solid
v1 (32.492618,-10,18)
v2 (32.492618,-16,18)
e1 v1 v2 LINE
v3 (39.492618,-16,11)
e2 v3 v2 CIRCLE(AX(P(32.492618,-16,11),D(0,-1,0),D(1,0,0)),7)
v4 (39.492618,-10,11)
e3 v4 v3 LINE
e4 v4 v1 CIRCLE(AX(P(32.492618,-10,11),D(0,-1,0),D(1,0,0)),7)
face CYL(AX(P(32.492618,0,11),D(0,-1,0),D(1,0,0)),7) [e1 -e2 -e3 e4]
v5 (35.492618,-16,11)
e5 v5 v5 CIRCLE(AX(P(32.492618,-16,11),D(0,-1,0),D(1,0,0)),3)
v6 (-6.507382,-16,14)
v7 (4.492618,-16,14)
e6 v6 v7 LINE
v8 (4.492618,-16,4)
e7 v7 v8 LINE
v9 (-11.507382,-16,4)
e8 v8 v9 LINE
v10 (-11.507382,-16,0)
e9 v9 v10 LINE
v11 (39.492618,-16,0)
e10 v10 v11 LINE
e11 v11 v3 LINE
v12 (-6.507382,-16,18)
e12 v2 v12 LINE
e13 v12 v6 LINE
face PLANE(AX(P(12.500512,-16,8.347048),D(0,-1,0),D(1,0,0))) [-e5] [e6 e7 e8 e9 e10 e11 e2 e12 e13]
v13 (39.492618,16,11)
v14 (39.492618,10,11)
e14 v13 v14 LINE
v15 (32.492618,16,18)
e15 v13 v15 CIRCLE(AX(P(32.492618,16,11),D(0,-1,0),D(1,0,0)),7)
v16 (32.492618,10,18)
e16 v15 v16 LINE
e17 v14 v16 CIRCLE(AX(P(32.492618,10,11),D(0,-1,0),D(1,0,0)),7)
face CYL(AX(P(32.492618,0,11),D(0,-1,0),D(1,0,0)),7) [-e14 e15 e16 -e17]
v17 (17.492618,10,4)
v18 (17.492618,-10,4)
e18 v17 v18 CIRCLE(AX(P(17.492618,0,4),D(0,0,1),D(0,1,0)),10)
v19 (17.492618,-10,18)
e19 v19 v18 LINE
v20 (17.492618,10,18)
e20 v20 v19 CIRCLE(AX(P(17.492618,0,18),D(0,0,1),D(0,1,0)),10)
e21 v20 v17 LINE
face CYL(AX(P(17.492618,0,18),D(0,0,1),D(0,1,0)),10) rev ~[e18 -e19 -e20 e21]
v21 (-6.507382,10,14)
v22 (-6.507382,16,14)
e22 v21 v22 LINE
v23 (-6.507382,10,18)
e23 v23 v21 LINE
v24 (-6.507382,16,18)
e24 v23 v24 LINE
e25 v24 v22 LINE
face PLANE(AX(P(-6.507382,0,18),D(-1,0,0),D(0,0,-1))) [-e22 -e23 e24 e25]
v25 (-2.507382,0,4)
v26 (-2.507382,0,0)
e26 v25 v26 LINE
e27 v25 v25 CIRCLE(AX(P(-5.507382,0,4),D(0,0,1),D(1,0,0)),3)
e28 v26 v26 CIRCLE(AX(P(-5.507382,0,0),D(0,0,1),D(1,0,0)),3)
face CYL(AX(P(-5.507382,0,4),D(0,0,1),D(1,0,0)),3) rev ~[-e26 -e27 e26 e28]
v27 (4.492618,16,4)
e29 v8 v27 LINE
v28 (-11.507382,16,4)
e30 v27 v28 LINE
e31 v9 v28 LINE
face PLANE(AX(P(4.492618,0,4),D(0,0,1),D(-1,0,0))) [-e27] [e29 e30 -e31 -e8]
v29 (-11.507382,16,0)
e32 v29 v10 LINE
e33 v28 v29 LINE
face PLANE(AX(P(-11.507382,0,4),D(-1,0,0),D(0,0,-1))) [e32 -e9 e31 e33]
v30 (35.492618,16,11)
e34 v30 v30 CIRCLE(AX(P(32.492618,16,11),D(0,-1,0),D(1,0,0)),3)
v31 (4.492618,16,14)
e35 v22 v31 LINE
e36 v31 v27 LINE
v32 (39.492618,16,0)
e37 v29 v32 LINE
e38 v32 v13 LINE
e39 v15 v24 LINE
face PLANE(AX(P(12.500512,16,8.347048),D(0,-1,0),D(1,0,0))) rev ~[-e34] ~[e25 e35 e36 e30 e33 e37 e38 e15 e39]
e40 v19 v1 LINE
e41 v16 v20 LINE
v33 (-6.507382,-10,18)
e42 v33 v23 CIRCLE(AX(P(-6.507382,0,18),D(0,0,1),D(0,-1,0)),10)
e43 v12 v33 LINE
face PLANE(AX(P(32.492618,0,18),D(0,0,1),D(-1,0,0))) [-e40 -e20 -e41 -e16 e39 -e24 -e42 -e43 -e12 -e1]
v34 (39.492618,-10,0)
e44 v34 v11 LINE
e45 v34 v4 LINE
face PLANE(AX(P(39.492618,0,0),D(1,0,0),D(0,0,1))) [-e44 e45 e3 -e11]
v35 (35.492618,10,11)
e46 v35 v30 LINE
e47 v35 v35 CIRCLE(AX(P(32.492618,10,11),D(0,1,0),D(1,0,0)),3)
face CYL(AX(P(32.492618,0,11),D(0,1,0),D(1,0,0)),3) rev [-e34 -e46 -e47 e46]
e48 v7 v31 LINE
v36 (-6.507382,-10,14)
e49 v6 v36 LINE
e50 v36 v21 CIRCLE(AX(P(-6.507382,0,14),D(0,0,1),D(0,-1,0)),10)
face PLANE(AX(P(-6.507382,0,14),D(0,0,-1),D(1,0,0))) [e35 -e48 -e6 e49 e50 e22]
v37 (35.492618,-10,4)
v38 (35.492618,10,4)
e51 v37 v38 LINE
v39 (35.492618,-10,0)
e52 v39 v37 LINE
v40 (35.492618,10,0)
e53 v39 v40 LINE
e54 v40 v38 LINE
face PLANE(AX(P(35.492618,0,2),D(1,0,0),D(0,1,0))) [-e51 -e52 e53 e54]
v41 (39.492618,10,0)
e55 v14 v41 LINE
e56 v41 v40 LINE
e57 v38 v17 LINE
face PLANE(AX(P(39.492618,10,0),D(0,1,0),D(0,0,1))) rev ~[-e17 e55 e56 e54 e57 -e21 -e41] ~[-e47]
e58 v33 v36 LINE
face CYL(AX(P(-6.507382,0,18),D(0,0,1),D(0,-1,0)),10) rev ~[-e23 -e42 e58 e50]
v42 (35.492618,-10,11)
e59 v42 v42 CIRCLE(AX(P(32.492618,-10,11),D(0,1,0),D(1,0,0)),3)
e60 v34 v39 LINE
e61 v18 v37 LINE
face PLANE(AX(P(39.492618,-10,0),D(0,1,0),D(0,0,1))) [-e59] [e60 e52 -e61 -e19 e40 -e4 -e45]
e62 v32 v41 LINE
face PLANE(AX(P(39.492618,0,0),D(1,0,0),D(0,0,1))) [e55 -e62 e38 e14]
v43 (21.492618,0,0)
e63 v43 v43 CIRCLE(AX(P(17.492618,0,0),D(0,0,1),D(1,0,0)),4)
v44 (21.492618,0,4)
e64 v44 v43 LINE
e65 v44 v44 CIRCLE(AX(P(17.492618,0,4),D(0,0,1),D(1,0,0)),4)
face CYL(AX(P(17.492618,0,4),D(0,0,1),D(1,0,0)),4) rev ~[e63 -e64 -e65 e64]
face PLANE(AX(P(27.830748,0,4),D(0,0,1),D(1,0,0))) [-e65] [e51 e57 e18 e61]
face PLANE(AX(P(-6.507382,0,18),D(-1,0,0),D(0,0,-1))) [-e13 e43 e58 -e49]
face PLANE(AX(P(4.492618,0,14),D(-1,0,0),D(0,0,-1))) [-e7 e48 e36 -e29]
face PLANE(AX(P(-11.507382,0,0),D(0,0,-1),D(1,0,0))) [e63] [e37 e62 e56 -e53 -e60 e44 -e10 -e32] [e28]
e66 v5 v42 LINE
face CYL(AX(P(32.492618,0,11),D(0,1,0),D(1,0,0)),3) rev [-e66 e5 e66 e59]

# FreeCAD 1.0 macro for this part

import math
import FreeCAD as App
import Part
import Sketcher

V = App.Vector
Q = App.Units.Quantity

doc = App.newDocument("Part")
body = doc.addObject("PartDesign::Body", "Body")

# Sketch on XZ plane
sketch1 = body.newObject("Sketcher::SketchObject", "Sketch")
sketch1.AttachmentSupport = (doc.getObject("XZ_Plane"), [""])
sketch1.MapMode = "FlatFace"
sketch1.addGeometry([
    Part.LineSegment(V(-11.5, 4, 0), V(-11.5, 0, 0)),  # 0
    Part.LineSegment(V(-11.5, 0, 0), V(39.5, 0, 0)),  # 1
    Part.LineSegment(V(39.5, 0, 0), V(39.5, 11, 0)),  # 2
    Part.ArcOfCircle(Part.Circle(V(32.5, 11, 0), V(0, 0, 1), 7), math.radians(0), math.radians(90)),  # 3
    Part.LineSegment(V(32.5, 18, 0), V(-6.5, 18, 0)),  # 4
    Part.LineSegment(V(-6.5, 18, 0), V(-6.5, 14, 0)),  # 5
    Part.LineSegment(V(-6.5, 14, 0), V(4.5, 14, 0)),  # 6
    Part.LineSegment(V(4.5, 14, 0), V(4.5, 4, 0)),  # 7
    Part.LineSegment(V(4.5, 4, 0), V(-11.5, 4, 0)),  # 8
    Part.Circle(V(32.5, 11, 0), V(0, 0, 1), 3),  # 9
], False)
sketch1.addConstraint([
    Sketcher.Constraint("Coincident", 0, 2, 1, 1),
    Sketcher.Constraint("Coincident", 1, 2, 2, 1),
    Sketcher.Constraint("Tangent", 2, 2, 3, 1),
    Sketcher.Constraint("Tangent", 3, 2, 4, 1),
    Sketcher.Constraint("Coincident", 4, 2, 5, 1),
    Sketcher.Constraint("Coincident", 5, 2, 6, 1),
    Sketcher.Constraint("Coincident", 6, 2, 7, 1),
    Sketcher.Constraint("Coincident", 7, 2, 8, 1),
    Sketcher.Constraint("Coincident", 8, 2, 0, 1),
    Sketcher.Constraint("Vertical", 0),
    Sketcher.Constraint("Horizontal", 1),
    Sketcher.Constraint("Vertical", 2),
    Sketcher.Constraint("Horizontal", 4),
    Sketcher.Constraint("Vertical", 5),
    Sketcher.Constraint("Horizontal", 6),
    Sketcher.Constraint("Vertical", 7),
    Sketcher.Constraint("Horizontal", 8),
    Sketcher.Constraint("Coincident", 9, 3, 3, 3),
    Sketcher.Constraint("PointOnObject", 0, 2, -1),
    Sketcher.Constraint("Equal", 6, 2),
    Sketcher.Constraint("Equal", 0, 5),
    Sketcher.Constraint("Diameter", 9, Q("6 mm")),
    Sketcher.Constraint("Radius", 3, Q("7 mm")),
    Sketcher.Constraint("DistanceX", 1, 1, 1, 2, Q("51 mm")),
    Sketcher.Constraint("DistanceX", 4, 2, 4, 1, Q("39 mm")),
    Sketcher.Constraint("DistanceX", 6, 1, 6, 2, Q("11 mm")),
    Sketcher.Constraint("DistanceY", 0, 2, 0, 1, Q("4 mm")),
    Sketcher.Constraint("DistanceX", -1, 1, 3, 3, Q("32.492618 mm")),
])
pad1 = body.newObject("PartDesign::Pad", "Pad")
pad1.Profile = sketch1
pad1.Length = 32
pad1.Midplane = True

# Sketch on XY plane
sketch2 = body.newObject("Sketcher::SketchObject", "Sketch001")
sketch2.AttachmentSupport = (doc.getObject("XY_Plane"), [""])
sketch2.MapMode = "FlatFace"
sketch2.AttachmentOffset = App.Placement(V(0, 0, 18), App.Rotation())
sketch2.addGeometry([
    Part.LineSegment(V(44, 10, 0), V(17, 10, 0)),  # 0
    Part.ArcOfCircle(Part.Circle(V(17, 0, 0), V(0, 0, 1), 10), math.radians(90), math.radians(270)),  # 1
    Part.LineSegment(V(17, -10, 0), V(44, -10, 0)),  # 2
    Part.LineSegment(V(44, -10, 0), V(44, 10, 0)),  # 3
    Part.ArcOfCircle(Part.Circle(V(-7, 0, 0), V(0, 0, 1), 10), math.radians(-90), math.radians(90)),  # 4
    Part.LineSegment(V(-7, 10, 0), V(-7, -10, 0)),  # 5
], False)
sketch2.addConstraint([
    Sketcher.Constraint("Tangent", 0, 2, 1, 1),
    Sketcher.Constraint("Tangent", 1, 2, 2, 1),
    Sketcher.Constraint("Coincident", 2, 2, 3, 1),
    Sketcher.Constraint("Coincident", 3, 2, 0, 1),
    Sketcher.Constraint("Coincident", 4, 1, 5, 2),
    Sketcher.Constraint("Coincident", 5, 1, 4, 2),
    Sketcher.Constraint("Horizontal", 0),
    Sketcher.Constraint("Horizontal", 2),
    Sketcher.Constraint("Vertical", 3),
    Sketcher.Constraint("Vertical", 5),
    Sketcher.Constraint("Equal", 1, 4),
    Sketcher.Constraint("PointOnObject", 1, 3, -1),
    Sketcher.Constraint("PointOnObject", 4, 3, -1),
    Sketcher.Constraint("Radius", 1, Q("10 mm")),
    Sketcher.Constraint("DistanceX", 4, 3, 1, 3, Q("24 mm")),
    Sketcher.Constraint("DistanceX", 4, 1, 1, 2, Q("24 mm")),
    Sketcher.Constraint("DistanceX", 0, 2, 0, 1, Q("26.610282 mm")),
    Sketcher.Constraint("DistanceX", -1, 1, 2, 2, Q("44.1029 mm")),
])
pocket1 = body.newObject("PartDesign::Pocket", "Pocket")
pocket1.Profile = sketch2
pocket1.Length = 14

# Sketch on YZ plane
sketch3 = body.newObject("Sketcher::SketchObject", "Sketch002")
sketch3.AttachmentSupport = (doc.getObject("YZ_Plane"), [""])
sketch3.MapMode = "FlatFace"
sketch3.AttachmentOffset = App.Placement(V(0, 0, 39.492618), App.Rotation())
sketch3.addGeometry([
    Part.LineSegment(V(-10, 4, 0), V(-10, 0, 0)),
    Part.LineSegment(V(-10, 0, 0), V(10, 0, 0)),
    Part.LineSegment(V(10, 0, 0), V(10, 4, 0)),
    Part.LineSegment(V(10, 4, 0), V(-10, 4, 0)),
], False)
sketch3.addConstraint([
    Sketcher.Constraint("Coincident", 0, 2, 1, 1),
    Sketcher.Constraint("Coincident", 1, 2, 2, 1),
    Sketcher.Constraint("Coincident", 2, 2, 3, 1),
    Sketcher.Constraint("Coincident", 3, 2, 0, 1),
    Sketcher.Constraint("Vertical", 0),
    Sketcher.Constraint("Horizontal", 1),
    Sketcher.Constraint("Vertical", 2),
    Sketcher.Constraint("Horizontal", 3),
    Sketcher.Constraint("Symmetric", 0, 2, 1, 2, -1, 1),
    Sketcher.Constraint("DistanceX", 1, 1, 1, 2, Q("20 mm")),
    Sketcher.Constraint("DistanceY", 0, 2, 0, 1, Q("4 mm")),
])
pocket2 = body.newObject("PartDesign::Pocket", "Pocket001")
pocket2.Profile = sketch3
pocket2.Length = 4

# Sketch on XY plane
sketch4 = body.newObject("Sketcher::SketchObject", "Sketch003")
sketch4.AttachmentSupport = (doc.getObject("XY_Plane"), [""])
sketch4.MapMode = "FlatFace"
sketch4.AttachmentOffset = App.Placement(V(0, 0, 4), App.Rotation())
sketch4.addGeometry(Part.Circle(V(-5.5, 0, 0), V(0, 0, 1), 3), False)
sketch4.addConstraint([
    Sketcher.Constraint("PointOnObject", 0, 3, -1),
    Sketcher.Constraint("Diameter", 0, Q("6 mm")),
    Sketcher.Constraint("DistanceX", 0, 3, -1, 1, Q("5.507382 mm")),
])
pocket3 = body.newObject("PartDesign::Pocket", "Pocket002")
pocket3.Profile = sketch4
pocket3.Length = 25

# Sketch on XY plane
sketch5 = body.newObject("Sketcher::SketchObject", "Sketch004")
sketch5.AttachmentSupport = (doc.getObject("XY_Plane"), [""])
sketch5.MapMode = "FlatFace"
sketch5.AttachmentOffset = App.Placement(V(0, 0, 4), App.Rotation())
sketch5.addGeometry(Part.Circle(V(17.5, 0, 0), V(0, 0, 1), 4), False)
sketch5.addConstraint([
    Sketcher.Constraint("PointOnObject", 0, 3, -1),
    Sketcher.Constraint("Diameter", 0, Q("8 mm")),
    Sketcher.Constraint("DistanceX", -1, 1, 0, 3, Q("17.492618 mm")),
])
pocket4 = body.newObject("PartDesign::Pocket", "Pocket003")
pocket4.Profile = sketch5
pocket4.Length = 25

doc.recompute()
